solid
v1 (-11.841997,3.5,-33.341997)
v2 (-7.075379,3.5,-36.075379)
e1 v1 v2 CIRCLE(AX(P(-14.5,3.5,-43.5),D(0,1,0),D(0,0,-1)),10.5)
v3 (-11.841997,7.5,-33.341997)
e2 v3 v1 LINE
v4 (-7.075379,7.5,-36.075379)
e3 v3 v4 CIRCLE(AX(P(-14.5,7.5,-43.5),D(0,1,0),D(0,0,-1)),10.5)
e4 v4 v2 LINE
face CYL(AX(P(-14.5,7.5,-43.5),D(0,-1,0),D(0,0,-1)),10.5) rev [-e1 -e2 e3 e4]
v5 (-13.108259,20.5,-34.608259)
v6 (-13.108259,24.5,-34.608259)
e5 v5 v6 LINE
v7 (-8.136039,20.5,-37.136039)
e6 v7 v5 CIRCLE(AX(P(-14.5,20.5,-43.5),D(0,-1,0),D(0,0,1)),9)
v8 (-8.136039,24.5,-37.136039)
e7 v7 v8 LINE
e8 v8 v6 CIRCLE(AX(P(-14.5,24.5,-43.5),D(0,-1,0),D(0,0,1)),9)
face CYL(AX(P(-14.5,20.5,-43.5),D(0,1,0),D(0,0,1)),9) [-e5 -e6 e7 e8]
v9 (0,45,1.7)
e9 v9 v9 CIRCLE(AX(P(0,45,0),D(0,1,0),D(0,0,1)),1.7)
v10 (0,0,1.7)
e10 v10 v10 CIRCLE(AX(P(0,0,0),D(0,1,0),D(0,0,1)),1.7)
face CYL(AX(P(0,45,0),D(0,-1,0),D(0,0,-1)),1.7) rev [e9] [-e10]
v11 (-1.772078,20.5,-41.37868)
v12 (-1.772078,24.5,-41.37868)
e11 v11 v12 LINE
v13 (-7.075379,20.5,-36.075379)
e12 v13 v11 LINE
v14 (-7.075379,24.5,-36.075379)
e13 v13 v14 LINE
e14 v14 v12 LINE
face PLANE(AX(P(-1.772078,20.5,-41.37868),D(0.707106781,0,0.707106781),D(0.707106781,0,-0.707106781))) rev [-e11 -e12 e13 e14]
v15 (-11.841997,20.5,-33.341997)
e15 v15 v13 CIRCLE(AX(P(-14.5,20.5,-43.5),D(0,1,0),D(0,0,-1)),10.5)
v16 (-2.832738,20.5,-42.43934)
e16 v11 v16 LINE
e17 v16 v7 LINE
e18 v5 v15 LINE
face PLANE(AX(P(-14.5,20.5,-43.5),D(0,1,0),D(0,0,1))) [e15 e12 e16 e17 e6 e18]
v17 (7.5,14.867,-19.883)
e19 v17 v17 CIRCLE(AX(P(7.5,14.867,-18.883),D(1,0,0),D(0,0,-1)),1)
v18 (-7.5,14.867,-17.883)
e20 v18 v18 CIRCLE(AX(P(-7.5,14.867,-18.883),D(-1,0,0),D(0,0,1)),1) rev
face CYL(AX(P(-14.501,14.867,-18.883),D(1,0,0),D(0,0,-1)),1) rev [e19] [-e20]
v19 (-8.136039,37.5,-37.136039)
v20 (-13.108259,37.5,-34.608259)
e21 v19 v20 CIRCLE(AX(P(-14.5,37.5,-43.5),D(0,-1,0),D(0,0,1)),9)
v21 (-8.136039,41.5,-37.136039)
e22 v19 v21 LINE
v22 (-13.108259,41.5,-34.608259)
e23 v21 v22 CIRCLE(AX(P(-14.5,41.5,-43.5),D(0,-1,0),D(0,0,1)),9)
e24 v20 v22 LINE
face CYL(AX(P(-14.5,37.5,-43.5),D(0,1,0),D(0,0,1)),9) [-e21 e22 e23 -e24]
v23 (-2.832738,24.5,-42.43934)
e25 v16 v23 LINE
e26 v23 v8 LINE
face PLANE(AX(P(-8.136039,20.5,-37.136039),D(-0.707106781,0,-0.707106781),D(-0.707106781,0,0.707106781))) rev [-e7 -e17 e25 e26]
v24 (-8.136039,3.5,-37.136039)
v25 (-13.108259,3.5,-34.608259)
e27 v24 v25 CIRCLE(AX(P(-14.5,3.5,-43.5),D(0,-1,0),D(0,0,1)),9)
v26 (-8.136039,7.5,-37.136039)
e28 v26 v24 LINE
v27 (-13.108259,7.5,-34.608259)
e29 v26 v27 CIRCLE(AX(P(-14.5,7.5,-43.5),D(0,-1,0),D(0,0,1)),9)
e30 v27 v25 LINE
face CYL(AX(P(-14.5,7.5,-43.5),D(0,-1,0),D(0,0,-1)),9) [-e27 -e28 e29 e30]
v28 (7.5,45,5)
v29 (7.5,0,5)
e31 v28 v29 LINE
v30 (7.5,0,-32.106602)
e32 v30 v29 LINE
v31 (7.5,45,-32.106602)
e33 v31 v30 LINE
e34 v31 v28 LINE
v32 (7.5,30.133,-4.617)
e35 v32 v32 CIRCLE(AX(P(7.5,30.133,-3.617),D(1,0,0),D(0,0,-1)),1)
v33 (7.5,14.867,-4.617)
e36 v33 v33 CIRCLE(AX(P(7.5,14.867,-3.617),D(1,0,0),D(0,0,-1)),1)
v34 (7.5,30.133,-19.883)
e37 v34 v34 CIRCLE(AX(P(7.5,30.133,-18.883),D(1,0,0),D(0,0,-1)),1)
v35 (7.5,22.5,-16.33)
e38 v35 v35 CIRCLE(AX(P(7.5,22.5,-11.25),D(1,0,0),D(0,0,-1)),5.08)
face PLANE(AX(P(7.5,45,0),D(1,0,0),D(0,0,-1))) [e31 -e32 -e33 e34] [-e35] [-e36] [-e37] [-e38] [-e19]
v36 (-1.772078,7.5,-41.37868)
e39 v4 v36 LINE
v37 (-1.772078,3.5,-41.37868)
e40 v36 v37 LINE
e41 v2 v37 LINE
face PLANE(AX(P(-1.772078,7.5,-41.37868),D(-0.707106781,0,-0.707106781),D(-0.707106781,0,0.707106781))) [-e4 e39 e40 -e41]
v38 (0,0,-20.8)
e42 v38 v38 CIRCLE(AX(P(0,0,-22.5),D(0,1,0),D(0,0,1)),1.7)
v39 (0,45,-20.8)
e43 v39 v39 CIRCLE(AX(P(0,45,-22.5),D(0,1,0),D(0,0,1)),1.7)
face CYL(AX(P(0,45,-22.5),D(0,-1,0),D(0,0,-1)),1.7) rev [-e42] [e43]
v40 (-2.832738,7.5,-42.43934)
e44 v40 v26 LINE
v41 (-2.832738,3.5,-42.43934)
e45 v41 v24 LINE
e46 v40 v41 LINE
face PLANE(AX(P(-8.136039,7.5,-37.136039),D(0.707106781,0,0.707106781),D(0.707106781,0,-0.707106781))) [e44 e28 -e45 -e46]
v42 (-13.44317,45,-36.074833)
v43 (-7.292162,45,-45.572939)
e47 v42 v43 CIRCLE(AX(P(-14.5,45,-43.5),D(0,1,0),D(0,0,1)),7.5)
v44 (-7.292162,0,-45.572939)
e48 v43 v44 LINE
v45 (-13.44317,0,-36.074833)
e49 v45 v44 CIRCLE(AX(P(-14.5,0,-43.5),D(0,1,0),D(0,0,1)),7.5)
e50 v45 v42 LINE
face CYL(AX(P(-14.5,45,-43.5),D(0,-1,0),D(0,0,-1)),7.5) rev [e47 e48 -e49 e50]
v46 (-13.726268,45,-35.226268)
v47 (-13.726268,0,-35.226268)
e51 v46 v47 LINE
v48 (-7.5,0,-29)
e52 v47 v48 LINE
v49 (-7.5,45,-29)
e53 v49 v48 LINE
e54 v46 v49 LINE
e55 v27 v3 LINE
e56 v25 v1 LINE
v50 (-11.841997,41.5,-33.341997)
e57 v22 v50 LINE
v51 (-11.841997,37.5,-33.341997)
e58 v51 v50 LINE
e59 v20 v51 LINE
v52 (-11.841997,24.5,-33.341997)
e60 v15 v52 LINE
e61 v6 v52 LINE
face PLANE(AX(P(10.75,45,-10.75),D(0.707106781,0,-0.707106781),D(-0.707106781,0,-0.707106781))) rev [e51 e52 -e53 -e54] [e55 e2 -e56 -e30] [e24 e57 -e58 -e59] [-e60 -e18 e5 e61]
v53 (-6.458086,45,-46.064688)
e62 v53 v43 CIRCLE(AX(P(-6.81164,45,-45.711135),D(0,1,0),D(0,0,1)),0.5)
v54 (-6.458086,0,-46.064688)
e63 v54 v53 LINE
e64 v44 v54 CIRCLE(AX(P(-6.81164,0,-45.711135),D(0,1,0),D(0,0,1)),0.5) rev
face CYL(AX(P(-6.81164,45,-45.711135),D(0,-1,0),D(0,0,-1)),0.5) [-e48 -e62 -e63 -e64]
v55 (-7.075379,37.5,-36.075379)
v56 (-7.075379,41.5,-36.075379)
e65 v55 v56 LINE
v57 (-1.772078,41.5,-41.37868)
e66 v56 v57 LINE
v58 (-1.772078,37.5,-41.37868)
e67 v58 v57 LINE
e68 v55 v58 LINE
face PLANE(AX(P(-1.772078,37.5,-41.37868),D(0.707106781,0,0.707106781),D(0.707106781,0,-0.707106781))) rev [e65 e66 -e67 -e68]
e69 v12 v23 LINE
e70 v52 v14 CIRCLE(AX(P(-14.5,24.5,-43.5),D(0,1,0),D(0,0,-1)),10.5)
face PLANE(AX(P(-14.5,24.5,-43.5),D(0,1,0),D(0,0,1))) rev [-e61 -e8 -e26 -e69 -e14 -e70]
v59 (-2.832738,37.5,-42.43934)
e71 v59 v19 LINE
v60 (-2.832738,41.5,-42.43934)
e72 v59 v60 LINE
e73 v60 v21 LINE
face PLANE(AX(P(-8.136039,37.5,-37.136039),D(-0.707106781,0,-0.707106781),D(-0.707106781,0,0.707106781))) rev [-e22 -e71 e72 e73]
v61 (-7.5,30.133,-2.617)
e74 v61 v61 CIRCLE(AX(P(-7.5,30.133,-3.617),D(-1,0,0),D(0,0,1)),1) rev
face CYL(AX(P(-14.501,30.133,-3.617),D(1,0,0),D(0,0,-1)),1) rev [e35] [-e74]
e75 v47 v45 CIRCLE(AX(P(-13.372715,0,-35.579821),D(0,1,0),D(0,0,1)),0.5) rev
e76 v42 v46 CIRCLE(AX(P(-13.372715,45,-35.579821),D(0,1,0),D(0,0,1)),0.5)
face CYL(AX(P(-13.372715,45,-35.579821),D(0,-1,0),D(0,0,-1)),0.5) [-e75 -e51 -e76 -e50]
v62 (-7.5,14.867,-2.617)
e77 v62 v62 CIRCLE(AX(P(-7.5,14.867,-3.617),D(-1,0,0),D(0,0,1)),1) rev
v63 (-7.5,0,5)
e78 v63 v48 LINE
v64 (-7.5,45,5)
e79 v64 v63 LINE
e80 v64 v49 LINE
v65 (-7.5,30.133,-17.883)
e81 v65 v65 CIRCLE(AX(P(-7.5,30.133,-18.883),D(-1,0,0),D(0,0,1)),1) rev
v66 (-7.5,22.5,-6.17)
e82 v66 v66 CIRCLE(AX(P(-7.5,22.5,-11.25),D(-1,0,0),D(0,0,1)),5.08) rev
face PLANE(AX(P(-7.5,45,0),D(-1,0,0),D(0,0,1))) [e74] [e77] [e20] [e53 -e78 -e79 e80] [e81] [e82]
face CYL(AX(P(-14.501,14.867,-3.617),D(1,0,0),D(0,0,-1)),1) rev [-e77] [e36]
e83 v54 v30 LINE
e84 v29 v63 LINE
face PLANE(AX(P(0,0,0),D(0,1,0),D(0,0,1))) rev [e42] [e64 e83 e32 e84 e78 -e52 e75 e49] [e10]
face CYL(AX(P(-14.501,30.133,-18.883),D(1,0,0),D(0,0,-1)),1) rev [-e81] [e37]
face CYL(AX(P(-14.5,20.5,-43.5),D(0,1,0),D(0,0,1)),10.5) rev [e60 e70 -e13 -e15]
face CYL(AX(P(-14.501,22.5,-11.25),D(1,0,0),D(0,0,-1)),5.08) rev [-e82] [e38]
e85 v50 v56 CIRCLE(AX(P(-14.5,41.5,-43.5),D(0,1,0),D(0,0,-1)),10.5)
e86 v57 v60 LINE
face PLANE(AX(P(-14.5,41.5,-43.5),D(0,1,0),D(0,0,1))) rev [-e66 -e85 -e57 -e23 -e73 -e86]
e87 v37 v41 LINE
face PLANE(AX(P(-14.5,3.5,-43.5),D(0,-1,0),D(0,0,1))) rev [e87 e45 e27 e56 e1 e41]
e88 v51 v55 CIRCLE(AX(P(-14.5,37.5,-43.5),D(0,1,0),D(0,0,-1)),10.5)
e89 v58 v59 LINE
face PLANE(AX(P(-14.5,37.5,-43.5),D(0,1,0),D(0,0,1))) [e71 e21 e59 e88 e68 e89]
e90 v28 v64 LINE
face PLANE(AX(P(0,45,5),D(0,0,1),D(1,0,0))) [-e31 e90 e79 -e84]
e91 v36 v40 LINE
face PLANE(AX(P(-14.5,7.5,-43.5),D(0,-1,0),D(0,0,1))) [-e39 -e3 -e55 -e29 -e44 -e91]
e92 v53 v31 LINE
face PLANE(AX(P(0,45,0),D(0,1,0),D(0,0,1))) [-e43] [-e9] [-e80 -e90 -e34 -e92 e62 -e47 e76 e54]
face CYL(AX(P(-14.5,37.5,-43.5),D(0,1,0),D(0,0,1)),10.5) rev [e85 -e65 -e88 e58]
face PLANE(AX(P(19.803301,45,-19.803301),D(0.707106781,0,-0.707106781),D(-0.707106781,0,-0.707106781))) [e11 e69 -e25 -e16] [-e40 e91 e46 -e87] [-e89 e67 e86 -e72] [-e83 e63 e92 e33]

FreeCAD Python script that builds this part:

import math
import FreeCAD as App
import Part
import Sketcher
Q = App.Units.Quantity


def edges_at(feature, points):
    """Names of the edges that pass closest to the given points."""
    edges = feature.Shape.Edges
    near = lambda p: min(range(len(edges)), key=lambda i: edges[i].distToShape(Part.Vertex(*p))[0])
    return sorted({f"Edge{near(p) + 1}" for p in points})

doc = App.newDocument("Part")
body = doc.addObject("PartDesign::Body", "Body")

sketch1 = body.newObject("Sketcher::SketchObject", "Sketch")
sketch1.AttachmentSupport = (doc.getObject("XZ_Plane"), [""])
sketch1.MapMode = "FlatFace"
sketch1.addGeometry([
    Part.ArcOfCircle(Part.Circle(App.Vector(-14.5, -43.5, 0), App.Vector(0, 0, 1), 7.5), math.radians(-45), math.radians(90)),
    Part.LineSegment(App.Vector(-14.5, -36, 0), App.Vector(-7.5, -29, 0)),
    Part.LineSegment(App.Vector(-7.5, -29, 0), App.Vector(-7.5, 5, 0)),
    Part.LineSegment(App.Vector(-7.5, 5, 0), App.Vector(7.5, 5, 0)),
    Part.LineSegment(App.Vector(7.5, 5, 0), App.Vector(7.5, -32.1, 0)),
    Part.LineSegment(App.Vector(7.5, -32.1, 0), App.Vector(-9.2, -48.8, 0)),
    Part.Circle(App.Vector(0, 0, 0), App.Vector(0, 0, 1), 1.7),
    Part.Circle(App.Vector(0, -22.5, 0), App.Vector(0, 0, 1), 1.7),
], False)
sketch1.addConstraint([
    Sketcher.Constraint("Coincident", 0, 2, 1, 1),
    Sketcher.Constraint("Coincident", 1, 2, 2, 1),
    Sketcher.Constraint("Coincident", 2, 2, 3, 1),
    Sketcher.Constraint("Coincident", 3, 2, 4, 1),
    Sketcher.Constraint("Coincident", 4, 2, 5, 1),
    Sketcher.Constraint("Tangent", 5, 2, 0, 1),
    Sketcher.Constraint("Vertical", 2),
    Sketcher.Constraint("Horizontal", 3),
    Sketcher.Constraint("Vertical", 4),
    Sketcher.Constraint("Coincident", 6, 3, -1, 1),
    Sketcher.Constraint("Equal", 6, 7),
    Sketcher.Constraint("PointOnObject", 7, 3, -2),
    Sketcher.Constraint("Parallel", 1, 5),
    Sketcher.Constraint("Diameter", 6, Q("3.4 mm")),
    Sketcher.Constraint("Radius", 0, Q("7.5 mm")),
    Sketcher.Constraint("DistanceX", 3, 1, 3, 2, Q("15 mm")),
    Sketcher.Constraint("DistanceY", 2, 1, 2, 2, Q("34 mm")),
    Sketcher.Constraint("Angle", 1, Q("45 deg")),
    Sketcher.Constraint("DistanceY", 0, 2, -1, 1, Q("36 mm")),
    Sketcher.Constraint("DistanceY", 1, 2, -1, 1, Q("29 mm")),
    Sketcher.Constraint("DistanceY", 0, 3, 7, 3, Q("21 mm")),
    Sketcher.Constraint("DistanceX", 0, 3, 1, 2, Q("7 mm")),
    Sketcher.Constraint("DistanceX", 0, 3, -1, 1, Q("14.5 mm")),
])
pad1 = body.newObject("PartDesign::Pad", "Pad")
pad1.Profile = sketch1
pad1.Length = 45
pad1.Reversed = True

sketch2 = body.newObject("Sketcher::SketchObject", "Sketch001")
sketch2.AttachmentSupport = (doc.getObject("YZ_Plane"), [""])
sketch2.MapMode = "FlatFace"
sketch2.AttachmentOffset = App.Placement(App.Vector(0, 0, 7.5), App.Rotation())
sketch2.addGeometry(Part.Circle(App.Vector(22, -11, 0), App.Vector(0, 0, 1), 5), False)
sketch2.addConstraint([
    Sketcher.Constraint("Diameter", 0, Q("10.16 mm")),
    Sketcher.Constraint("DistanceX", -1, 1, 0, 3, Q("22.5 mm")),
    Sketcher.Constraint("DistanceY", 0, 3, -1, 1, Q("11.25 mm")),
])
pocket1 = body.newObject("PartDesign::Pocket", "Pocket")
pocket1.Profile = sketch2
pocket1.Type = "UpToFirst"

sketch3 = body.newObject("Sketcher::SketchObject", "Sketch002")
sketch3.AttachmentSupport = (doc.getObject("YZ_Plane"), [""])
sketch3.MapMode = "FlatFace"
sketch3.AttachmentOffset = App.Placement(App.Vector(0, 0, 7.5), App.Rotation())
sketch3.addGeometry(Part.Circle(App.Vector(30.1, -3.6, 0), App.Vector(0, 0, 1), 1), False)
sketch3.addConstraint([
    Sketcher.Constraint("Diameter", 0, Q("2 mm")),
    Sketcher.Constraint("DistanceX", -1, 1, 0, 3, Q("30.133 mm")),
    Sketcher.Constraint("DistanceY", 0, 3, -1, 1, Q("3.617 mm")),
])
pocket2 = body.newObject("PartDesign::Pocket", "Pocket001")
pocket2.Profile = sketch3
pocket2.Type = "UpToFirst"

sketch4 = body.newObject("Sketcher::SketchObject", "Sketch003")
sketch4.AttachmentSupport = (doc.getObject("YZ_Plane"), [""])
sketch4.MapMode = "FlatFace"
sketch4.AttachmentOffset = App.Placement(App.Vector(0, 0, 7.5), App.Rotation())
sketch4.addGeometry(Part.Circle(App.Vector(30.1, -18.9, 0), App.Vector(0, 0, 1), 1), False)
sketch4.addConstraint([
    Sketcher.Constraint("Diameter", 0, Q("2 mm")),
    Sketcher.Constraint("DistanceX", -1, 1, 0, 3, Q("30.133 mm")),
    Sketcher.Constraint("DistanceY", 0, 3, -1, 1, Q("18.883 mm")),
])
pocket3 = body.newObject("PartDesign::Pocket", "Pocket002")
pocket3.Profile = sketch4
pocket3.Type = "UpToFirst"

sketch5 = body.newObject("Sketcher::SketchObject", "Sketch004")
sketch5.AttachmentSupport = (doc.getObject("YZ_Plane"), [""])
sketch5.MapMode = "FlatFace"
sketch5.AttachmentOffset = App.Placement(App.Vector(0, 0, 7.5), App.Rotation())
sketch5.addGeometry(Part.Circle(App.Vector(14.9, -18.9, 0), App.Vector(0, 0, 1), 1), False)
sketch5.addConstraint([
    Sketcher.Constraint("Diameter", 0, Q("2 mm")),
    Sketcher.Constraint("DistanceX", -1, 1, 0, 3, Q("14.867 mm")),
    Sketcher.Constraint("DistanceY", 0, 3, -1, 1, Q("18.883 mm")),
])
pocket4 = body.newObject("PartDesign::Pocket", "Pocket003")
pocket4.Profile = sketch5
pocket4.Type = "UpToFirst"

sketch6 = body.newObject("Sketcher::SketchObject", "Sketch005")
sketch6.AttachmentSupport = (doc.getObject("YZ_Plane"), [""])
sketch6.MapMode = "FlatFace"
sketch6.AttachmentOffset = App.Placement(App.Vector(0, 0, 7.5), App.Rotation())
sketch6.addGeometry(Part.Circle(App.Vector(14.9, -3.6, 0), App.Vector(0, 0, 1), 1), False)
sketch6.addConstraint([
    Sketcher.Constraint("Diameter", 0, Q("2 mm")),
    Sketcher.Constraint("DistanceX", -1, 1, 0, 3, Q("14.867 mm")),
    Sketcher.Constraint("DistanceY", 0, 3, -1, 1, Q("3.617 mm")),
])
pocket5 = body.newObject("PartDesign::Pocket", "Pocket004")
pocket5.Profile = sketch6
pocket5.Type = "UpToFirst"
doc.recompute()

fillet = body.newObject("PartDesign::Fillet", "Fillet")
fillet.Base = (pocket5, edges_at(pocket5, [(-9.197, 22.5, -48.803), (-14.5, 22.5, -36)]))
fillet.Radius = 0.5

sketch7 = body.newObject("Sketcher::SketchObject", "Sketch006")
sketch7.AttachmentSupport = (doc.getObject("XZ_Plane"), [""])
sketch7.MapMode = "FlatFace"
sketch7.AttachmentOffset = App.Placement(App.Vector(0, 0, -22.5), App.Rotation())
sketch7.addGeometry([
    Part.LineSegment(App.Vector(-2.8, -42.4, 0), App.Vector(-8.1, -37.1, 0)),
    Part.ArcOfCircle(Part.Circle(App.Vector(-14.5, -43.5, 0), App.Vector(0, 0, 1), 9), math.radians(45), math.radians(81)),
    Part.LineSegment(App.Vector(-13.1, -34.6, 0), App.Vector(-11.8, -33.3, 0)),
    Part.ArcOfCircle(Part.Circle(App.Vector(-14.5, -43.5, 0), App.Vector(0, 0, 1), 10.5), math.radians(45), math.radians(75)),
    Part.LineSegment(App.Vector(-7.1, -36.1, 0), App.Vector(-1.8, -41.4, 0)),
    Part.LineSegment(App.Vector(-1.8, -41.4, 0), App.Vector(-2.8, -42.4, 0)),
], False)
sketch7.addConstraint([
    Sketcher.Constraint("Tangent", 0, 2, 1, 1),
    Sketcher.Constraint("Coincident", 1, 2, 2, 1),
    Sketcher.Constraint("Coincident", 2, 2, 3, 2),
    Sketcher.Constraint("Tangent", 3, 1, 4, 1),
    Sketcher.Constraint("Coincident", 4, 2, 5, 1),
    Sketcher.Constraint("Coincident", 5, 2, 0, 1),
    Sketcher.Constraint("Coincident", 3, 3, 1, 3),
    Sketcher.Constraint("Perpendicular", 0, 2),
    Sketcher.Constraint("Perpendicular", 2, 4),
    Sketcher.Constraint("Perpendicular", 4, 5),
    Sketcher.Constraint("Radius", 1, Q("9 mm")),
    Sketcher.Constraint("Radius", 3, Q("10.5 mm")),
    Sketcher.Constraint("Angle", 0, Q("135 deg")),
    Sketcher.Constraint("Distance", 0, Q("7.5 mm")),
    Sketcher.Constraint("DistanceX", 1, 3, -1, 1, Q("14.5 mm")),
    Sketcher.Constraint("DistanceY", 1, 3, -1, 1, Q("43.5 mm")),
    Sketcher.Constraint("DistanceX", 1, 2, -1, 1, Q("13.108259 mm")),
])
pocket6 = body.newObject("PartDesign::Pocket", "Pocket005")
pocket6.Profile = sketch7
pocket6.Length = 4
pocket6.Midplane = True

sketch8 = body.newObject("Sketcher::SketchObject", "Sketch007")
sketch8.AttachmentSupport = (doc.getObject("XZ_Plane"), [""])
sketch8.MapMode = "FlatFace"
sketch8.AttachmentOffset = App.Placement(App.Vector(0, 0, -39.5), App.Rotation())
sketch8.addGeometry([
    Part.LineSegment(App.Vector(-2.8, -42.4, 0), App.Vector(-8.1, -37.1, 0)),
    Part.ArcOfCircle(Part.Circle(App.Vector(-14.5, -43.5, 0), App.Vector(0, 0, 1), 9), math.radians(45), math.radians(81)),
    Part.LineSegment(App.Vector(-13.1, -34.6, 0), App.Vector(-11.8, -33.3, 0)),
    Part.ArcOfCircle(Part.Circle(App.Vector(-14.5, -43.5, 0), App.Vector(0, 0, 1), 10.5), math.radians(45), math.radians(75)),
    Part.LineSegment(App.Vector(-7.1, -36.1, 0), App.Vector(-1.8, -41.4, 0)),
    Part.LineSegment(App.Vector(-1.8, -41.4, 0), App.Vector(-2.8, -42.4, 0)),
], False)
sketch8.addConstraint([
    Sketcher.Constraint("Tangent", 0, 2, 1, 1),
    Sketcher.Constraint("Coincident", 1, 2, 2, 1),
    Sketcher.Constraint("Coincident", 2, 2, 3, 2),
    Sketcher.Constraint("Tangent", 3, 1, 4, 1),
    Sketcher.Constraint("Coincident", 4, 2, 5, 1),
    Sketcher.Constraint("Coincident", 5, 2, 0, 1),
    Sketcher.Constraint("Coincident", 3, 3, 1, 3),
    Sketcher.Constraint("Perpendicular", 0, 2),
    Sketcher.Constraint("Perpendicular", 2, 4),
    Sketcher.Constraint("Perpendicular", 4, 5),
    Sketcher.Constraint("Radius", 1, Q("9 mm")),
    Sketcher.Constraint("Radius", 3, Q("10.5 mm")),
    Sketcher.Constraint("Angle", 0, Q("135 deg")),
    Sketcher.Constraint("Distance", 0, Q("7.5 mm")),
    Sketcher.Constraint("DistanceX", 1, 3, -1, 1, Q("14.5 mm")),
    Sketcher.Constraint("DistanceY", 1, 3, -1, 1, Q("43.5 mm")),
    Sketcher.Constraint("DistanceX", 1, 2, -1, 1, Q("13.108259 mm")),
])
pocket7 = body.newObject("PartDesign::Pocket", "Pocket006")
pocket7.Profile = sketch8
pocket7.Length = 4
pocket7.Midplane = True
doc.recompute()

datumplane = body.newObject("PartDesign::Plane", "DatumPlane")
datumplane.AttachmentSupport = (doc.getObject("XZ_Plane"), [""])
datumplane.MapMode = "FlatFace"
datumplane.AttachmentOffset = App.Placement(App.Vector(0, 0, -22.5), App.Rotation())
mirrored = body.newObject("PartDesign::Mirrored", "Mirrored")
mirrored.Originals = [pocket7]
mirrored.MirrorPlane = (datumplane, [""])
body.Tip = mirrored

doc.recompute()
